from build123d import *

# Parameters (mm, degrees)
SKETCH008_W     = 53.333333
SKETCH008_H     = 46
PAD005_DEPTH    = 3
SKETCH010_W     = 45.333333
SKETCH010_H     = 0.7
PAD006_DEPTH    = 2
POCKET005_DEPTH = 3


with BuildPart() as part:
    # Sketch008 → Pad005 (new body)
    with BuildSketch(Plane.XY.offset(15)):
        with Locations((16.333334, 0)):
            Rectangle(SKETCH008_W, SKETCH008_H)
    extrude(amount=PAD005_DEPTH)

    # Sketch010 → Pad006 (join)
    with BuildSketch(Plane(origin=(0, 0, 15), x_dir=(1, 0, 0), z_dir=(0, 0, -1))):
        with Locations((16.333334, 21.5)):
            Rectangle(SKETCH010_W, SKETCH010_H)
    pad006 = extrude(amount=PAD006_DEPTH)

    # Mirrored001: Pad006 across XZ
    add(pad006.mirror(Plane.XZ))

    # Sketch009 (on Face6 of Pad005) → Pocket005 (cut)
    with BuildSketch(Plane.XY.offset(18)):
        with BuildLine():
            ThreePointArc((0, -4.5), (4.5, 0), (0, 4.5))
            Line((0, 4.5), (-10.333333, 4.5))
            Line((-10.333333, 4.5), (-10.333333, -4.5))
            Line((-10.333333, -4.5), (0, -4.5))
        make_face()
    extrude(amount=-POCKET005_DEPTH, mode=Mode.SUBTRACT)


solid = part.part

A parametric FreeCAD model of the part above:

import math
import FreeCAD as App
import Part
import Sketcher


def add_polygon(sketch, points):
    """Adds a closed chain of lines whose ends are joined by coincident constraints."""
    first, n = sketch.GeometryCount, len(points)
    for a, b in zip(points, points[1:] + points[:1]):
        sketch.addGeometry(Part.LineSegment(App.Vector(*a, 0), App.Vector(*b, 0)), False)
    for i in range(n):
        sketch.addConstraint(Sketcher.Constraint("Coincident", first + i, 2, first + (i + 1) % n, 1))

doc = App.newDocument("Part")
body = doc.addObject("PartDesign::Body", "Body")

# Sketch on XY plane
sketch1 = body.newObject("Sketcher::SketchObject", "Sketch")
sketch1.AttachmentSupport = (doc.getObject("XY_Plane"), [""])
sketch1.MapMode = "FlatFace"
sketch1.AttachmentOffset = App.Placement(App.Vector(0, 0, 15), App.Rotation())
add_polygon(sketch1, [(-10.333332, 23), (-10.333332, -23), (43, -23), (43, 23)])  # lines 0-3
sketch1.addConstraint(Sketcher.Constraint("Vertical", 0))
sketch1.addConstraint(Sketcher.Constraint("Horizontal", 1))
sketch1.addConstraint(Sketcher.Constraint("Vertical", 2))
sketch1.addConstraint(Sketcher.Constraint("Horizontal", 3))
sketch1.addConstraint(Sketcher.Constraint("DistanceY", 0, 2, 0, 1, 46.0))
sketch1.addConstraint(Sketcher.Constraint("DistanceY", 0, 2, -1, 1, 23.0))
sketch1.addConstraint(Sketcher.Constraint("DistanceX", -1, 1, 1, 2, 43.0))
sketch1.addConstraint(Sketcher.Constraint("DistanceX", 1, 1, 1, 2, 53.333333))
pad1 = body.newObject("PartDesign::Pad", "Pad")
pad1.Profile = sketch1
pad1.Length = 3

# Sketch on XY plane
sketch2 = body.newObject("Sketcher::SketchObject", "Sketch001")
sketch2.AttachmentSupport = (doc.getObject("XY_Plane"), [""])
sketch2.MapMode = "FlatFace"
sketch2.AttachmentOffset = App.Placement(App.Vector(0, 0, 15), App.Rotation())
add_polygon(sketch2, [(-6.333333, -21.85), (-6.333333, -21.15), (39, -21.15), (39, -21.85)])  # lines 0-3
sketch2.addConstraint(Sketcher.Constraint("Vertical", 0))
sketch2.addConstraint(Sketcher.Constraint("Horizontal", 1))
sketch2.addConstraint(Sketcher.Constraint("Vertical", 2))
sketch2.addConstraint(Sketcher.Constraint("Horizontal", 3))
sketch2.addConstraint(Sketcher.Constraint("DistanceY", 0, 1, 0, 2, 0.7))
sketch2.addConstraint(Sketcher.Constraint("DistanceX", -1, 1, 1, 2, 39.0))
sketch2.addConstraint(Sketcher.Constraint("DistanceY", 0, 2, -1, 1, 21.15))
sketch2.addConstraint(Sketcher.Constraint("DistanceX", 1, 1, 1, 2, 45.333333))
pad2 = body.newObject("PartDesign::Pad", "Pad001")
pad2.Profile = sketch2
pad2.Length = 2
pad2.Reversed = True
doc.recompute()

mirrored = body.newObject("PartDesign::Mirrored", "Mirrored")
mirrored.Originals = [pad2]
mirrored.MirrorPlane = (doc.getObject("XZ_Plane"), [""])
body.Tip = mirrored

# Sketch on XY plane
sketch3 = body.newObject("Sketcher::SketchObject", "Sketch002")
sketch3.AttachmentSupport = (doc.getObject("XY_Plane"), [""])
sketch3.MapMode = "FlatFace"
sketch3.AttachmentOffset = App.Placement(App.Vector(0, 0, 18), App.Rotation())
sketch3.addGeometry(Part.ArcOfCircle(Part.Circle(App.Vector(0, 0, 0), App.Vector(0, 0, 1), 4.5), math.radians(-90), math.radians(90)), False)
sketch3.addGeometry(Part.LineSegment(App.Vector(0, 4.5, 0), App.Vector(-10.333333, 4.5, 0)), False)
sketch3.addGeometry(Part.LineSegment(App.Vector(-10.333333, 4.5, 0), App.Vector(-10.333333, -4.5, 0)), False)
sketch3.addGeometry(Part.LineSegment(App.Vector(-10.333333, -4.5, 0), App.Vector(0, -4.5, 0)), False)
sketch3.addConstraint(Sketcher.Constraint("Tangent", 0, 2, 1, 1))
sketch3.addConstraint(Sketcher.Constraint("Coincident", 1, 2, 2, 1))
sketch3.addConstraint(Sketcher.Constraint("Coincident", 2, 2, 3, 1))
sketch3.addConstraint(Sketcher.Constraint("Tangent", 3, 2, 0, 1))
sketch3.addConstraint(Sketcher.Constraint("Horizontal", 1))
sketch3.addConstraint(Sketcher.Constraint("Vertical", 2))
sketch3.addConstraint(Sketcher.Constraint("Horizontal", 3))
sketch3.addConstraint(Sketcher.Constraint("Coincident", 0, 3, -1, 1))
sketch3.addConstraint(Sketcher.Constraint("Radius", 0, 4.5))
sketch3.addConstraint(Sketcher.Constraint("DistanceX", 1, 2, 1, 1, 10.333333))
pocket1 = body.newObject("PartDesign::Pocket", "Pocket")
pocket1.Profile = sketch3
pocket1.Length = 3

doc.recompute()
